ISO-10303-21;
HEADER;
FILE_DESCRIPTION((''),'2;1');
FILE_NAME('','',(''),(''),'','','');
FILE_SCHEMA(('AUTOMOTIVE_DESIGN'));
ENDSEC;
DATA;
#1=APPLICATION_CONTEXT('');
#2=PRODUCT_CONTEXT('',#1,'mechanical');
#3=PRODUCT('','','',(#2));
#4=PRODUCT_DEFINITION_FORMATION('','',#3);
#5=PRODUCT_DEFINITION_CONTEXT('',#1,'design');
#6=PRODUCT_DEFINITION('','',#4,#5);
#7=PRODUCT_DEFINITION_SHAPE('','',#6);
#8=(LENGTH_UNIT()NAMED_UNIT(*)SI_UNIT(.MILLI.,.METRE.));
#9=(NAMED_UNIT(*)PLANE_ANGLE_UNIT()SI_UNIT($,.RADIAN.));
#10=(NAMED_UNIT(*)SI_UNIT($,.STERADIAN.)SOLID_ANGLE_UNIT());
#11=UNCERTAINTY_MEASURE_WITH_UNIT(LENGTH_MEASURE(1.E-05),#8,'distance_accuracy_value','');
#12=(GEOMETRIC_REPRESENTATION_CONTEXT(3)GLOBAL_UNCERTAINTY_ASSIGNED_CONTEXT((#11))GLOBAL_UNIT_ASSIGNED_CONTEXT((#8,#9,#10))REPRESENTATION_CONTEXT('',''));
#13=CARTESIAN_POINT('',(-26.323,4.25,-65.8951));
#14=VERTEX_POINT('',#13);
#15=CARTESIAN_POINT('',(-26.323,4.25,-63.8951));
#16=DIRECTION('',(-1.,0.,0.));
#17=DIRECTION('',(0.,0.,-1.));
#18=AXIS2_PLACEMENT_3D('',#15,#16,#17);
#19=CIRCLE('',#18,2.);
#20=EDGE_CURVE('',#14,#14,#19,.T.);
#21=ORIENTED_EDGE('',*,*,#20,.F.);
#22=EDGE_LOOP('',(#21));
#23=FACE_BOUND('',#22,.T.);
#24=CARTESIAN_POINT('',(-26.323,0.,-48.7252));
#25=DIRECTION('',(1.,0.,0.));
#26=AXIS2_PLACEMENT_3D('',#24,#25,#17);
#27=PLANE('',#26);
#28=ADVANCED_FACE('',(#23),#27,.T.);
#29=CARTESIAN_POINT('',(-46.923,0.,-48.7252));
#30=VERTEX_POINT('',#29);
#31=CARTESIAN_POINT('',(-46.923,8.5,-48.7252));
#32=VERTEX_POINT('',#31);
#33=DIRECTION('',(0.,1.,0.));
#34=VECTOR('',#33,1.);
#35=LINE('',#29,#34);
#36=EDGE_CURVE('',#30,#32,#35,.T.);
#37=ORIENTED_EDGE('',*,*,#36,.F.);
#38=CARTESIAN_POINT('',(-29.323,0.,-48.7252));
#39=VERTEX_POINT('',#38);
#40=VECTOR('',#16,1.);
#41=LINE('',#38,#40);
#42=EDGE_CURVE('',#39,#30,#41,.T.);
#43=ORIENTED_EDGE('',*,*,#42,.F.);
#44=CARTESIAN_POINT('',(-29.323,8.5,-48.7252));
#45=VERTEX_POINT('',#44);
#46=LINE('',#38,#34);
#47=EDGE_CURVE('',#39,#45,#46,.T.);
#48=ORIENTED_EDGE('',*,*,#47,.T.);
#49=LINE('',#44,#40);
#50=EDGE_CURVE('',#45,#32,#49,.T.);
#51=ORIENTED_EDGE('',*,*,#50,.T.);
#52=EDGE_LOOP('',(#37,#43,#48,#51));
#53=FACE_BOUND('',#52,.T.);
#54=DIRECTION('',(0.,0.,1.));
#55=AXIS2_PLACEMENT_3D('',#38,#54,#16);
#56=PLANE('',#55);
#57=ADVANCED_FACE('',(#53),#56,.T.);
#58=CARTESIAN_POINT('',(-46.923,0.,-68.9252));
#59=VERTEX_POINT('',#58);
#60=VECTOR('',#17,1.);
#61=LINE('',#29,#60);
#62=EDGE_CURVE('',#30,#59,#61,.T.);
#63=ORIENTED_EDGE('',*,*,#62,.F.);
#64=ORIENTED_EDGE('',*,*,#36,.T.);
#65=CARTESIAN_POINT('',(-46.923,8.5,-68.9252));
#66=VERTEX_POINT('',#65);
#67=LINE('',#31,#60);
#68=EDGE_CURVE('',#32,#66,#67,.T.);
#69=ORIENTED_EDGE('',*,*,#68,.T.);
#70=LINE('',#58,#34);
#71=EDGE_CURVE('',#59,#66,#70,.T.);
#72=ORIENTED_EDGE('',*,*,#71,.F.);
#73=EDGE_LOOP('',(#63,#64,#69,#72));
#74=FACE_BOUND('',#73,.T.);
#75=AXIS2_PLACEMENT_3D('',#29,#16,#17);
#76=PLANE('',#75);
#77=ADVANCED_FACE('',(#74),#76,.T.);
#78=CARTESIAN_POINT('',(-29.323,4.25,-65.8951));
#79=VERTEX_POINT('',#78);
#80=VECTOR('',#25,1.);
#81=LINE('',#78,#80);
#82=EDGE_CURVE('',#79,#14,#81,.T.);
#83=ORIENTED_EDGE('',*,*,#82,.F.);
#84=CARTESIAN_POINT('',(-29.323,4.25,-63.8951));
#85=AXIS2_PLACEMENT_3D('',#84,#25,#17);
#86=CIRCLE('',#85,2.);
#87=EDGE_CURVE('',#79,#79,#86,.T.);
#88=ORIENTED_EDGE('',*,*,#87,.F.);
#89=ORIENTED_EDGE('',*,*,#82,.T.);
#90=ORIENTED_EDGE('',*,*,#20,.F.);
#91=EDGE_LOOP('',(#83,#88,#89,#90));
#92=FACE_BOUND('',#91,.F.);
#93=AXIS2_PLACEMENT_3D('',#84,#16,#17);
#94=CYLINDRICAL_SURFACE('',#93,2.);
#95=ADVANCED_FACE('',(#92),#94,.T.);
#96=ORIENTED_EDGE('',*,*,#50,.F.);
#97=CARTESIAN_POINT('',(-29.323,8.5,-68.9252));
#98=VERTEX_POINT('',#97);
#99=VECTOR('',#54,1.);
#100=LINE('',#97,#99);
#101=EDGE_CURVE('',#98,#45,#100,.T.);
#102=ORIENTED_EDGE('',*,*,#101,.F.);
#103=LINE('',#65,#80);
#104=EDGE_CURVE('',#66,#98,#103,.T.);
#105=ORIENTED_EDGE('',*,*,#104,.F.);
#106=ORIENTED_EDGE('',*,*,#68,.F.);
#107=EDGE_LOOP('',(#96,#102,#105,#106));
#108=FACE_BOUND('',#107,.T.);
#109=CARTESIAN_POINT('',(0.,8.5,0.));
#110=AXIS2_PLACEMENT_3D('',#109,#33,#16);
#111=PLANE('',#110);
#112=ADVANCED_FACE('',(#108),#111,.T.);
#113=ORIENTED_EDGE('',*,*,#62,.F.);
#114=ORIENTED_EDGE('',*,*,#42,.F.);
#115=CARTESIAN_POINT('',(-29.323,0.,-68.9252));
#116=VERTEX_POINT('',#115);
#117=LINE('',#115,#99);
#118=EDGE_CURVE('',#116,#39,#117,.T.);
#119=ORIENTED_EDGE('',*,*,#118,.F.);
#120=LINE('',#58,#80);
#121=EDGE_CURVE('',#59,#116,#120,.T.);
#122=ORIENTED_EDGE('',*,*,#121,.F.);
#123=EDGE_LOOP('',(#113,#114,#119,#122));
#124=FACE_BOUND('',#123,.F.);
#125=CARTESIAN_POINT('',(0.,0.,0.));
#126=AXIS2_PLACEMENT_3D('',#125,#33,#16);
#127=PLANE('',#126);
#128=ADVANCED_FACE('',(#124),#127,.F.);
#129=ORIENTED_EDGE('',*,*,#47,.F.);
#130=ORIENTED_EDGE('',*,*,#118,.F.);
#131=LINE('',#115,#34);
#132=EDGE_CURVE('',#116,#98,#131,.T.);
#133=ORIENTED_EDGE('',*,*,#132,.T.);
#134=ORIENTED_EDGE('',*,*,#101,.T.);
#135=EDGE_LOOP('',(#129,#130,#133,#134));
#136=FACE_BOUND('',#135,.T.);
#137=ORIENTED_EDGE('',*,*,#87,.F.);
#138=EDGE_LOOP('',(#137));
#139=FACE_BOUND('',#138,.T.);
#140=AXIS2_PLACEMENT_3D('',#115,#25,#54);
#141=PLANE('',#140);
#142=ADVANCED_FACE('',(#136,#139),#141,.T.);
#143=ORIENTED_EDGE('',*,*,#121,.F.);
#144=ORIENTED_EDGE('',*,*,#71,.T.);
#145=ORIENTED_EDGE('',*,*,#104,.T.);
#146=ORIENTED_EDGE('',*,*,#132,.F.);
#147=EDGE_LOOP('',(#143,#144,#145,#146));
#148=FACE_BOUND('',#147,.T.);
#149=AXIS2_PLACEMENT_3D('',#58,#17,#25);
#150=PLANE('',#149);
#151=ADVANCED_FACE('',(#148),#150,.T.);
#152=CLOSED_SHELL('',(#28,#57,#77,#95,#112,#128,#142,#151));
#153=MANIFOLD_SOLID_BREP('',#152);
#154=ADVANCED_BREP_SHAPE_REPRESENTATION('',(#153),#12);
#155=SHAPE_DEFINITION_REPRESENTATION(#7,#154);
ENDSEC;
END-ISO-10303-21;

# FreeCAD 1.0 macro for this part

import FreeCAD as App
import Part
import Sketcher

V = App.Vector

doc = App.newDocument("Part")
body = doc.addObject("PartDesign::Body", "Body")

# Sketch on XZ plane
sketch1 = body.newObject("Sketcher::SketchObject", "Sketch")
sketch1.AttachmentSupport = (doc.getObject("XZ_Plane"), [""])
sketch1.MapMode = "FlatFace"
sketch1.addGeometry([
    Part.LineSegment(V(-29.323, -68.9252, 0), V(-46.923, -68.9252, 0)),
    Part.LineSegment(V(-46.923, -68.9252, 0), V(-46.923, -48.7252, 0)),
    Part.LineSegment(V(-46.923, -48.7252, 0), V(-29.323, -48.7252, 0)),
    Part.LineSegment(V(-29.323, -48.7252, 0), V(-29.323, -68.9252, 0)),
], False)
sketch1.addConstraint([
    Sketcher.Constraint("Coincident", 0, 2, 1, 1),
    Sketcher.Constraint("Coincident", 1, 2, 2, 1),
    Sketcher.Constraint("Coincident", 2, 2, 3, 1),
    Sketcher.Constraint("Coincident", 3, 2, 0, 1),
    Sketcher.Constraint("Horizontal", 0),
    Sketcher.Constraint("Vertical", 1),
    Sketcher.Constraint("Horizontal", 2),
    Sketcher.Constraint("Vertical", 3),
    Sketcher.Constraint("DistanceX", 0, 2, 0, 1, 17.6),
    Sketcher.Constraint("DistanceY", 1, 1, 1, 2, 20.2),
    Sketcher.Constraint("DistanceX", 0, 2, -1, 1, 46.923),
    Sketcher.Constraint("DistanceY", 0, 2, -1, 1, 68.9252),
])
pad1 = body.newObject("PartDesign::Pad", "Pad")
pad1.Profile = sketch1
pad1.Length = 8.5
pad1.Reversed = True

# Sketch on YZ plane
sketch2 = body.newObject("Sketcher::SketchObject", "Sketch001")
sketch2.AttachmentSupport = (doc.getObject("YZ_Plane"), [""])
sketch2.MapMode = "FlatFace"
sketch2.AttachmentOffset = App.Placement(V(0, 0, -29.323), App.Rotation())
sketch2.addGeometry(Part.Circle(V(4.25, -63.8951, 0), V(0, 0, 1), 2), False)
sketch2.addConstraint([
    Sketcher.Constraint("Diameter", 0, 4.0),
    Sketcher.Constraint("DistanceX", -1, 1, 0, 3, 4.25),
    Sketcher.Constraint("DistanceY", 0, 3, -1, 1, 63.895),
])
pad2 = body.newObject("PartDesign::Pad", "Pad001")
pad2.Profile = sketch2
pad2.Length = 3

doc.recompute()
